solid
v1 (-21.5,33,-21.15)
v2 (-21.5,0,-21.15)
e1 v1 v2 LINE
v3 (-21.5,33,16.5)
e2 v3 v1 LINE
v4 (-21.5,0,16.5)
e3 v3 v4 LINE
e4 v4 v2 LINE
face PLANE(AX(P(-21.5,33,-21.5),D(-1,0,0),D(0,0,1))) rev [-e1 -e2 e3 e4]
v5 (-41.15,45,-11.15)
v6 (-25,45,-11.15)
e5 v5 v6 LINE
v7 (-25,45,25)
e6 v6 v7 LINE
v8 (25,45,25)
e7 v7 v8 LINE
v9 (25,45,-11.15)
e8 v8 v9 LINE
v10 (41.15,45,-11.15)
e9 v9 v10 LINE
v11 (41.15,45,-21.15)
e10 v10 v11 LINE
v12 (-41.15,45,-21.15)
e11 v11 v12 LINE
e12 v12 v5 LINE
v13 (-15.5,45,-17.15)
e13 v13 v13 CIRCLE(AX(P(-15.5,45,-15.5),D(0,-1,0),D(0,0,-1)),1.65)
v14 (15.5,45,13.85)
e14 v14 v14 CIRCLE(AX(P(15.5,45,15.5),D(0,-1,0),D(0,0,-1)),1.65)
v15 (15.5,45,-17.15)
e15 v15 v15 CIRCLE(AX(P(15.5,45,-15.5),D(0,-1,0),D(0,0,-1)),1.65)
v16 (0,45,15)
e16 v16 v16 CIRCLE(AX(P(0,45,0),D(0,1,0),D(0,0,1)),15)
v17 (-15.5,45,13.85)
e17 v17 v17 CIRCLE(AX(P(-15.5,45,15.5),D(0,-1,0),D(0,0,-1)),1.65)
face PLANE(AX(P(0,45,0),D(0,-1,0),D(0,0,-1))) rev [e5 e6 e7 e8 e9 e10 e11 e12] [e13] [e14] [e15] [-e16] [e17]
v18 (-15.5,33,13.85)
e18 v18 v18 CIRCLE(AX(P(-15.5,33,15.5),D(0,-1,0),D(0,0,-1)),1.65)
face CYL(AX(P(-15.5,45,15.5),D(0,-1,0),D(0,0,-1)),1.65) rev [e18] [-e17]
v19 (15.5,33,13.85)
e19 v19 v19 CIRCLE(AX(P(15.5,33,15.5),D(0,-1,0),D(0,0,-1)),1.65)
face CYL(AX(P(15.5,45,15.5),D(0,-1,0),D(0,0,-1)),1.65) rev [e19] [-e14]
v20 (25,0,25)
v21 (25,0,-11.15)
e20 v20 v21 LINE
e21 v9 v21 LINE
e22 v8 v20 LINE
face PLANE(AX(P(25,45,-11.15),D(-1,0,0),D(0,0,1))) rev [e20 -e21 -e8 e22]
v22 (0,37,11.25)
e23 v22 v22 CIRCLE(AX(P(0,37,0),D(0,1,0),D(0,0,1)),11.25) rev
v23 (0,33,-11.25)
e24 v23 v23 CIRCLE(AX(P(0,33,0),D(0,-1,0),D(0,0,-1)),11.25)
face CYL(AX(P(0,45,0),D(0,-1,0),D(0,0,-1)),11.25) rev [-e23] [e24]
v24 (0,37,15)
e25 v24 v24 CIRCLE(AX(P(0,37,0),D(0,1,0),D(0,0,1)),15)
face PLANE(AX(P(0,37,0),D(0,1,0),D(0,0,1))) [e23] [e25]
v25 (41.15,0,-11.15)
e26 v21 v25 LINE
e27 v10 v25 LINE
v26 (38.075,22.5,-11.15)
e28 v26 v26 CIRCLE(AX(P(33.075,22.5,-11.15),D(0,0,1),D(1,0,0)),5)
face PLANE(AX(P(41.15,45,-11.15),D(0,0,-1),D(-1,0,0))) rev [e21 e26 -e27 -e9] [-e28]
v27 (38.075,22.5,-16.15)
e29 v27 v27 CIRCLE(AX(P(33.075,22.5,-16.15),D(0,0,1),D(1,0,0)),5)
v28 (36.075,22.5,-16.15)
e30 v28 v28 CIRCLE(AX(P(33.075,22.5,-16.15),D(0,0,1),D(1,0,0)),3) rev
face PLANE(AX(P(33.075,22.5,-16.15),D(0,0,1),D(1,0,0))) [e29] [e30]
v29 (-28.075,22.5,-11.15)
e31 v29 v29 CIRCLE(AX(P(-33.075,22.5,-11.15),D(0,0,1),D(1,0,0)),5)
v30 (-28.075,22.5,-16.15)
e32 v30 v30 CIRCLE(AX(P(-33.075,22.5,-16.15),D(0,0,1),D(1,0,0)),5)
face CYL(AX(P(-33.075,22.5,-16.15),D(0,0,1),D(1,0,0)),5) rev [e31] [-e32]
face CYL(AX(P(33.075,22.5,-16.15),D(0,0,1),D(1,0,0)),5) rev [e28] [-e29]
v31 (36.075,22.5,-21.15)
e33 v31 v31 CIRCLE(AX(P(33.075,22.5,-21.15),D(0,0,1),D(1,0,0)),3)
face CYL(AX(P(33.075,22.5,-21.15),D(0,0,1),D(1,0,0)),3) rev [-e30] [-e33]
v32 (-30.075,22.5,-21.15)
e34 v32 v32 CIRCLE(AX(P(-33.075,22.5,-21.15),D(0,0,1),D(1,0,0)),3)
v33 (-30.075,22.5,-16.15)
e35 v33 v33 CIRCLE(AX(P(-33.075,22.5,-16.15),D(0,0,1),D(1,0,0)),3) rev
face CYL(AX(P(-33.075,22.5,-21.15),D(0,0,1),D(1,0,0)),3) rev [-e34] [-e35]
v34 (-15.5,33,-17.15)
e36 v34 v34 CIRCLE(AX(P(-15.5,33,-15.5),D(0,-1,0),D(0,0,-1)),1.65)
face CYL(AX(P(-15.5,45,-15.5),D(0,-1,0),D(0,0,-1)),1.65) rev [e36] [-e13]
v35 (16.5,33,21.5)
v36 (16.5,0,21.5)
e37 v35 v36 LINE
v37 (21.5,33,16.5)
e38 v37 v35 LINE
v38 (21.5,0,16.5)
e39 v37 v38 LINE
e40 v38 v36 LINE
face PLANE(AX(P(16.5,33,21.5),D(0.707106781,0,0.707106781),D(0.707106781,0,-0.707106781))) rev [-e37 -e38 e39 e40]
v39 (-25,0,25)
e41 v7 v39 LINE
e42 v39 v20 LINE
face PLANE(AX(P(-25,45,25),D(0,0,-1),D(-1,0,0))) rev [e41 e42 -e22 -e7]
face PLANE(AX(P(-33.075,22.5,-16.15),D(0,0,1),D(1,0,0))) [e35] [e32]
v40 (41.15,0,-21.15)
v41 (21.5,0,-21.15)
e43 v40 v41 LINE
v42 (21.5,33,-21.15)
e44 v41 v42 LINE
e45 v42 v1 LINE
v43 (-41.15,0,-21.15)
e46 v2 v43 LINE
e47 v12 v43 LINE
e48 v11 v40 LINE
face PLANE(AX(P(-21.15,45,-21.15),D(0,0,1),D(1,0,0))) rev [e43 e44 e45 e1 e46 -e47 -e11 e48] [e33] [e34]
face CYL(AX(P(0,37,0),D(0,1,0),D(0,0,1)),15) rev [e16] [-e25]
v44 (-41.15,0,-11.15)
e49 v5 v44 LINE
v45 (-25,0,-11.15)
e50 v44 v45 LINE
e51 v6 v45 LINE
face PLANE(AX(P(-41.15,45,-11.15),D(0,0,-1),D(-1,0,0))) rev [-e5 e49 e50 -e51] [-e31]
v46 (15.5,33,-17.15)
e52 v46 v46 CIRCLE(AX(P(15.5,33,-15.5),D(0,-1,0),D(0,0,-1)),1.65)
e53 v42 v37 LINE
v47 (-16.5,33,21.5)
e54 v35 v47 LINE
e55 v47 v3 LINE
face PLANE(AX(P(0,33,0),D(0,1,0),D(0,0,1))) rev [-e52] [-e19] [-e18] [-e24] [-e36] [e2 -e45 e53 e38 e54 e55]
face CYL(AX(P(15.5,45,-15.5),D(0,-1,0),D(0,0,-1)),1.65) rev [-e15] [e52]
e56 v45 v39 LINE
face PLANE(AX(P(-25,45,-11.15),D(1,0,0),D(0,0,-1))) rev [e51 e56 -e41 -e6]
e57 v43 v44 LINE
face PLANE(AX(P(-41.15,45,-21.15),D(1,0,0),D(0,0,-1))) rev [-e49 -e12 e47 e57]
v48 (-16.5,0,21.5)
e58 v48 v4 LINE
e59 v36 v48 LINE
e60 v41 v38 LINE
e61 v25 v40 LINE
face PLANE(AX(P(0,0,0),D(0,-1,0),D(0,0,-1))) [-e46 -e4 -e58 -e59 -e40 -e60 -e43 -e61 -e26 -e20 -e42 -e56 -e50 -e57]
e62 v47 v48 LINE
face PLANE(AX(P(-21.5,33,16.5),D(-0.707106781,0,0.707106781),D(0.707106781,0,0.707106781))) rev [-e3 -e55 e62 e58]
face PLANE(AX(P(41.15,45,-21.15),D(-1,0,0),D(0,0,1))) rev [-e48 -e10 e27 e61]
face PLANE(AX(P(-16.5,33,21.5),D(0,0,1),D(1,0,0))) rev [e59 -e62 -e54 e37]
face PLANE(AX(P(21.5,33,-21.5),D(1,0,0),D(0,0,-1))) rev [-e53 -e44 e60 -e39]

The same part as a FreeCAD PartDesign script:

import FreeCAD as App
import Part
import Sketcher
from FreeCAD import Vector

doc = App.newDocument("Part")
body = doc.addObject("PartDesign::Body", "Body")

sketch1 = body.newObject("Sketcher::SketchObject", "Sketch")
sketch1.AttachmentSupport = (doc.getObject("XZ_Plane"), [""])
sketch1.MapMode = "FlatFace"
sketch1.addGeometry(Part.LineSegment(Vector(41, -21, 0), Vector(-41, -21, 0)), False)
sketch1.addGeometry(Part.LineSegment(Vector(-41, -21, 0), Vector(-41, -11, 0)), False)
sketch1.addGeometry(Part.LineSegment(Vector(-41, -11, 0), Vector(-25, -11, 0)), False)
sketch1.addGeometry(Part.LineSegment(Vector(-25, -11, 0), Vector(-25, 25, 0)), False)
sketch1.addGeometry(Part.LineSegment(Vector(-25, 25, 0), Vector(25, 25, 0)), False)
sketch1.addGeometry(Part.LineSegment(Vector(25, 25, 0), Vector(25, -11, 0)), False)
sketch1.addGeometry(Part.LineSegment(Vector(25, -11, 0), Vector(41, -11, 0)), False)
sketch1.addGeometry(Part.LineSegment(Vector(41, -11, 0), Vector(41, -21, 0)), False)
sketch1.addConstraint(Sketcher.Constraint("Coincident", 0, 2, 1, 1))
sketch1.addConstraint(Sketcher.Constraint("Coincident", 1, 2, 2, 1))
sketch1.addConstraint(Sketcher.Constraint("Coincident", 2, 2, 3, 1))
sketch1.addConstraint(Sketcher.Constraint("Coincident", 3, 2, 4, 1))
sketch1.addConstraint(Sketcher.Constraint("Coincident", 4, 2, 5, 1))
sketch1.addConstraint(Sketcher.Constraint("Coincident", 5, 2, 6, 1))
sketch1.addConstraint(Sketcher.Constraint("Coincident", 6, 2, 7, 1))
sketch1.addConstraint(Sketcher.Constraint("Coincident", 7, 2, 0, 1))
sketch1.addConstraint(Sketcher.Constraint("Horizontal", 0))
sketch1.addConstraint(Sketcher.Constraint("Vertical", 1))
sketch1.addConstraint(Sketcher.Constraint("Horizontal", 2))
sketch1.addConstraint(Sketcher.Constraint("Vertical", 3))
sketch1.addConstraint(Sketcher.Constraint("Horizontal", 4))
sketch1.addConstraint(Sketcher.Constraint("Vertical", 5))
sketch1.addConstraint(Sketcher.Constraint("Horizontal", 6))
sketch1.addConstraint(Sketcher.Constraint("Vertical", 7))
sketch1.addConstraint(Sketcher.Constraint("Symmetric", 2, 2, 5, 2, -2))
sketch1.addConstraint(Sketcher.Constraint("Equal", 2, 6))
sketch1.addConstraint(Sketcher.Constraint("DistanceX", 4, 1, 4, 2, 50.0))
sketch1.addConstraint(Sketcher.Constraint("DistanceY", 1, 1, 1, 2, 10.0))
sketch1.addConstraint(Sketcher.Constraint("DistanceX", 0, 2, 0, 1, 82.3))
sketch1.addConstraint(Sketcher.Constraint("DistanceY", -1, 1, 3, 2, 25.0))
sketch1.addConstraint(Sketcher.Constraint("DistanceY", 3, 1, 3, 2, 36.15))
pad1 = body.newObject("PartDesign::Pad", "Pad")
pad1.Profile = sketch1
pad1.Length = 45
pad1.Reversed = True

sketch2 = body.newObject("Sketcher::SketchObject", "Sketch001")
sketch2.AttachmentSupport = (doc.getObject("XZ_Plane"), [""])
sketch2.MapMode = "FlatFace"
sketch2.addGeometry(Part.LineSegment(Vector(-16, 22, 0), Vector(-22, 16, 0)), False)
sketch2.addGeometry(Part.LineSegment(Vector(-22, 16, 0), Vector(-22, -22, 0)), False)
sketch2.addGeometry(Part.LineSegment(Vector(-22, -22, 0), Vector(22, -22, 0)), False)
sketch2.addGeometry(Part.LineSegment(Vector(22, -22, 0), Vector(22, 16, 0)), False)
sketch2.addGeometry(Part.LineSegment(Vector(22, 16, 0), Vector(16, 22, 0)), False)
sketch2.addGeometry(Part.LineSegment(Vector(16, 22, 0), Vector(-16, 22, 0)), False)
sketch2.addConstraint(Sketcher.Constraint("Coincident", 0, 2, 1, 1))
sketch2.addConstraint(Sketcher.Constraint("Coincident", 1, 2, 2, 1))
sketch2.addConstraint(Sketcher.Constraint("Coincident", 2, 2, 3, 1))
sketch2.addConstraint(Sketcher.Constraint("Coincident", 3, 2, 4, 1))
sketch2.addConstraint(Sketcher.Constraint("Coincident", 4, 2, 5, 1))
sketch2.addConstraint(Sketcher.Constraint("Coincident", 5, 2, 0, 1))
sketch2.addConstraint(Sketcher.Constraint("Vertical", 1))
sketch2.addConstraint(Sketcher.Constraint("Horizontal", 2))
sketch2.addConstraint(Sketcher.Constraint("Vertical", 3))
sketch2.addConstraint(Sketcher.Constraint("Horizontal", 5))
sketch2.addConstraint(Sketcher.Constraint("Symmetric", 0, 2, 3, 2, -2))
sketch2.addConstraint(Sketcher.Constraint("Perpendicular", 0, 4))
sketch2.addConstraint(Sketcher.Constraint("Equal", 0, 4))
sketch2.addConstraint(Sketcher.Constraint("DistanceX", 2, 1, 2, 2, 43.0))
sketch2.addConstraint(Sketcher.Constraint("DistanceX", 5, 2, 5, 1, 33.0))
sketch2.addConstraint(Sketcher.Constraint("DistanceY", 1, 2, 1, 1, 38.0))
sketch2.addConstraint(Sketcher.Constraint("DistanceY", -1, 1, 0, 2, 16.5))
pocket1 = body.newObject("PartDesign::Pocket", "Pocket")
pocket1.Profile = sketch2
pocket1.Length = 33

sketch3 = body.newObject("Sketcher::SketchObject", "Sketch002")
sketch3.AttachmentSupport = (doc.getObject("XZ_Plane"), [""])
sketch3.MapMode = "FlatFace"
sketch3.AttachmentOffset = App.Placement(Vector(0, 0, -33), App.Rotation())
sketch3.addGeometry(Part.Circle(Vector(0, 0, 0), Vector(0, 0, 1), 11), False)
sketch3.addConstraint(Sketcher.Constraint("Coincident", 0, 3, -1, 1))
sketch3.addConstraint(Sketcher.Constraint("Diameter", 0, 22.5))
pocket2 = body.newObject("PartDesign::Pocket", "Pocket001")
pocket2.Profile = sketch3
pocket2.Type = "ThroughAll"

sketch4 = body.newObject("Sketcher::SketchObject", "Sketch003")
sketch4.AttachmentSupport = (doc.getObject("XZ_Plane"), [""])
sketch4.MapMode = "FlatFace"
sketch4.AttachmentOffset = App.Placement(Vector(0, 0, -33), App.Rotation())
sketch4.addGeometry(Part.Circle(Vector(-15.5, 15.5, 0), Vector(0, 0, 1), 1.6), False)
sketch4.addGeometry(Part.Circle(Vector(15.5, 15.5, 0), Vector(0, 0, 1), 1.6), False)
sketch4.addGeometry(Part.Circle(Vector(-15.5, -15.5, 0), Vector(0, 0, 1), 1.6), False)
sketch4.addGeometry(Part.Circle(Vector(15.5, -15.5, 0), Vector(0, 0, 1), 1.6), False)
sketch4.addConstraint(Sketcher.Constraint("Equal", 0, 1))
sketch4.addConstraint(Sketcher.Constraint("Equal", 1, 2))
sketch4.addConstraint(Sketcher.Constraint("Equal", 2, 3))
sketch4.addConstraint(Sketcher.Constraint("Symmetric", 1, 3, 2, 3, -1, 1))
sketch4.addConstraint(Sketcher.Constraint("Symmetric", 0, 3, 3, 3, -1, 1))
sketch4.addConstraint(Sketcher.Constraint("Symmetric", 0, 3, 1, 3, -2))
sketch4.addConstraint(Sketcher.Constraint("Diameter", 0, 3.3))
sketch4.addConstraint(Sketcher.Constraint("DistanceX", 0, 3, 1, 3, 31.0))
sketch4.addConstraint(Sketcher.Constraint("DistanceY", 2, 3, 0, 3, 31.0))
pocket3 = body.newObject("PartDesign::Pocket", "Pocket002")
pocket3.Profile = sketch4
pocket3.Type = "ThroughAll"

sketch5 = body.newObject("Sketcher::SketchObject", "Sketch004")
sketch5.AttachmentSupport = (doc.getObject("XY_Plane"), [""])
sketch5.MapMode = "FlatFace"
sketch5.AttachmentOffset = App.Placement(Vector(0, 0, -11.15), App.Rotation())
sketch5.addGeometry(Part.Circle(Vector(-33.1, 22.5, 0), Vector(0, 0, 1), 3), False)
sketch5.addGeometry(Part.Circle(Vector(33.1, 22.5, 0), Vector(0, 0, 1), 3), False)
sketch5.addConstraint(Sketcher.Constraint("Equal", 0, 1))
sketch5.addConstraint(Sketcher.Constraint("Symmetric", 0, 3, 1, 3, -2))
sketch5.addConstraint(Sketcher.Constraint("Diameter", 0, 6.0))
sketch5.addConstraint(Sketcher.Constraint("DistanceY", -1, 1, 0, 3, 22.5))
sketch5.addConstraint(Sketcher.Constraint("DistanceX", 0, 3, 1, 3, 66.15))
pocket4 = body.newObject("PartDesign::Pocket", "Pocket003")
pocket4.Profile = sketch5
pocket4.Type = "ThroughAll"

sketch6 = body.newObject("Sketcher::SketchObject", "Sketch005")
sketch6.AttachmentSupport = (doc.getObject("XY_Plane"), [""])
sketch6.MapMode = "FlatFace"
sketch6.AttachmentOffset = App.Placement(Vector(0, 0, -11.15), App.Rotation())
sketch6.addGeometry(Part.Circle(Vector(-33, 22, 0), Vector(0, 0, 1), 5), False)
sketch6.addGeometry(Part.Circle(Vector(33, 22, 0), Vector(0, 0, 1), 5), False)
sketch6.addConstraint(Sketcher.Constraint("Equal", 0, 1))
sketch6.addConstraint(Sketcher.Constraint("Symmetric", 0, 3, 1, 3, -2))
sketch6.addConstraint(Sketcher.Constraint("Diameter", 0, 10.0))
sketch6.addConstraint(Sketcher.Constraint("DistanceY", -1, 1, 0, 3, 22.5))
sketch6.addConstraint(Sketcher.Constraint("DistanceX", 0, 3, 1, 3, 66.15))
pocket5 = body.newObject("PartDesign::Pocket", "Pocket004")
pocket5.Profile = sketch6
pocket5.Length = 5

sketch7 = body.newObject("Sketcher::SketchObject", "Sketch006")
sketch7.AttachmentSupport = (doc.getObject("XZ_Plane"), [""])
sketch7.MapMode = "FlatFace"
sketch7.AttachmentOffset = App.Placement(Vector(0, 0, -45), App.Rotation())
sketch7.addGeometry(Part.Circle(Vector(0, 0, 0), Vector(0, 0, 1), 15), False)
sketch7.addConstraint(Sketcher.Constraint("Coincident", 0, 3, -1, 1))
sketch7.addConstraint(Sketcher.Constraint("Diameter", 0, 30.0))
pocket6 = body.newObject("PartDesign::Pocket", "Pocket005")
pocket6.Profile = sketch7
pocket6.Length = 8
pocket6.Reversed = True

doc.recompute()
